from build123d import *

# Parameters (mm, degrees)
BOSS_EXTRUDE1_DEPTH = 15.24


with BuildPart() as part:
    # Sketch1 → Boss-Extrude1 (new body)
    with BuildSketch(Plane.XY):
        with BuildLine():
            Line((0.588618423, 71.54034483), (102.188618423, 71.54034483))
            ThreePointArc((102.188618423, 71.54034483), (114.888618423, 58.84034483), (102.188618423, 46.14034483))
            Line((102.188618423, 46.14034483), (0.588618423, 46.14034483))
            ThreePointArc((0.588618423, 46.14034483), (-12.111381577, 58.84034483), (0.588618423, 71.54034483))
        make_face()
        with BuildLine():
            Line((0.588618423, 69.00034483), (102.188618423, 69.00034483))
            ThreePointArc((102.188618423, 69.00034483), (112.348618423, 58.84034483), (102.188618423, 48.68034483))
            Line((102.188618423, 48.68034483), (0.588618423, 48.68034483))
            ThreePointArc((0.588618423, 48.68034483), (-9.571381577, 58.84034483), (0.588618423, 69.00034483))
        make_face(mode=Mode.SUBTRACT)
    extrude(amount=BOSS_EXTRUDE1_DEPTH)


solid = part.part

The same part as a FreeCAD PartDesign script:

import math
import FreeCAD as App
import Part
import Sketcher
from FreeCAD import Vector
Q = App.Units.Quantity

doc = App.newDocument("Part")
body = doc.addObject("PartDesign::Body", "Body")

sketch1 = body.newObject("Sketcher::SketchObject", "Sketch")
sketch1.AttachmentSupport = (doc.getObject("XY_Plane"), [""])
sketch1.MapMode = "FlatFace"
sketch1.addGeometry(Part.LineSegment(Vector(102.188618, 71.540345, 0), Vector(0.588618, 71.540345, 0)), False)
sketch1.addGeometry(Part.ArcOfCircle(Part.Circle(Vector(0.588618, 58.840345, 0), Vector(0, 0, 1), 12.7), math.radians(90), math.radians(270)), False)
sketch1.addGeometry(Part.LineSegment(Vector(0.588618, 46.140345, 0), Vector(102.188618, 46.140345, 0)), False)
sketch1.addGeometry(Part.ArcOfCircle(Part.Circle(Vector(102.188618, 58.840345, 0), Vector(0, 0, 1), 12.7), math.radians(-90), math.radians(90)), False)
sketch1.addGeometry(Part.LineSegment(Vector(0.588618, 69.000345, 0), Vector(102.188618, 69.000345, 0)), False)
sketch1.addGeometry(Part.ArcOfCircle(Part.Circle(Vector(102.188618, 58.840345, 0), Vector(0, 0, 1), 10.16), math.radians(-90), math.radians(90)), False)
sketch1.addGeometry(Part.LineSegment(Vector(102.188618, 48.680345, 0), Vector(0.588618, 48.680345, 0)), False)
sketch1.addGeometry(Part.ArcOfCircle(Part.Circle(Vector(0.588618, 58.840345, 0), Vector(0, 0, 1), 10.16), math.radians(90), math.radians(270)), False)
sketch1.addConstraint(Sketcher.Constraint("Tangent", 0, 2, 1, 1))
sketch1.addConstraint(Sketcher.Constraint("Tangent", 1, 2, 2, 1))
sketch1.addConstraint(Sketcher.Constraint("Tangent", 2, 2, 3, 1))
sketch1.addConstraint(Sketcher.Constraint("Tangent", 3, 2, 0, 1))
sketch1.addConstraint(Sketcher.Constraint("Tangent", 4, 2, 5, 2))
sketch1.addConstraint(Sketcher.Constraint("Tangent", 5, 1, 6, 1))
sketch1.addConstraint(Sketcher.Constraint("Tangent", 6, 2, 7, 2))
sketch1.addConstraint(Sketcher.Constraint("Tangent", 7, 1, 4, 1))
sketch1.addConstraint(Sketcher.Constraint("Horizontal", 0))
sketch1.addConstraint(Sketcher.Constraint("Horizontal", 2))
sketch1.addConstraint(Sketcher.Constraint("Horizontal", 4))
sketch1.addConstraint(Sketcher.Constraint("Horizontal", 6))
sketch1.addConstraint(Sketcher.Constraint("Coincident", 5, 3, 3, 3))
sketch1.addConstraint(Sketcher.Constraint("Vertical", 7, 3, 0, 2))
sketch1.addConstraint(Sketcher.Constraint("Radius", 1, Q("0.5 in")))
sketch1.addConstraint(Sketcher.Constraint("Radius", 5, Q("0.4 in")))
sketch1.addConstraint(Sketcher.Constraint("DistanceX", 0, 2, 0, 1, Q("4 in")))
sketch1.addConstraint(Sketcher.Constraint("DistanceX", -1, 1, 1, 3, 0.588618))
sketch1.addConstraint(Sketcher.Constraint("DistanceY", -1, 1, 1, 3, 58.840345))
pad1 = body.newObject("PartDesign::Pad", "Pad")
pad1.Profile = sketch1
pad1.Length = Q("0.6 in")

doc.recompute()
